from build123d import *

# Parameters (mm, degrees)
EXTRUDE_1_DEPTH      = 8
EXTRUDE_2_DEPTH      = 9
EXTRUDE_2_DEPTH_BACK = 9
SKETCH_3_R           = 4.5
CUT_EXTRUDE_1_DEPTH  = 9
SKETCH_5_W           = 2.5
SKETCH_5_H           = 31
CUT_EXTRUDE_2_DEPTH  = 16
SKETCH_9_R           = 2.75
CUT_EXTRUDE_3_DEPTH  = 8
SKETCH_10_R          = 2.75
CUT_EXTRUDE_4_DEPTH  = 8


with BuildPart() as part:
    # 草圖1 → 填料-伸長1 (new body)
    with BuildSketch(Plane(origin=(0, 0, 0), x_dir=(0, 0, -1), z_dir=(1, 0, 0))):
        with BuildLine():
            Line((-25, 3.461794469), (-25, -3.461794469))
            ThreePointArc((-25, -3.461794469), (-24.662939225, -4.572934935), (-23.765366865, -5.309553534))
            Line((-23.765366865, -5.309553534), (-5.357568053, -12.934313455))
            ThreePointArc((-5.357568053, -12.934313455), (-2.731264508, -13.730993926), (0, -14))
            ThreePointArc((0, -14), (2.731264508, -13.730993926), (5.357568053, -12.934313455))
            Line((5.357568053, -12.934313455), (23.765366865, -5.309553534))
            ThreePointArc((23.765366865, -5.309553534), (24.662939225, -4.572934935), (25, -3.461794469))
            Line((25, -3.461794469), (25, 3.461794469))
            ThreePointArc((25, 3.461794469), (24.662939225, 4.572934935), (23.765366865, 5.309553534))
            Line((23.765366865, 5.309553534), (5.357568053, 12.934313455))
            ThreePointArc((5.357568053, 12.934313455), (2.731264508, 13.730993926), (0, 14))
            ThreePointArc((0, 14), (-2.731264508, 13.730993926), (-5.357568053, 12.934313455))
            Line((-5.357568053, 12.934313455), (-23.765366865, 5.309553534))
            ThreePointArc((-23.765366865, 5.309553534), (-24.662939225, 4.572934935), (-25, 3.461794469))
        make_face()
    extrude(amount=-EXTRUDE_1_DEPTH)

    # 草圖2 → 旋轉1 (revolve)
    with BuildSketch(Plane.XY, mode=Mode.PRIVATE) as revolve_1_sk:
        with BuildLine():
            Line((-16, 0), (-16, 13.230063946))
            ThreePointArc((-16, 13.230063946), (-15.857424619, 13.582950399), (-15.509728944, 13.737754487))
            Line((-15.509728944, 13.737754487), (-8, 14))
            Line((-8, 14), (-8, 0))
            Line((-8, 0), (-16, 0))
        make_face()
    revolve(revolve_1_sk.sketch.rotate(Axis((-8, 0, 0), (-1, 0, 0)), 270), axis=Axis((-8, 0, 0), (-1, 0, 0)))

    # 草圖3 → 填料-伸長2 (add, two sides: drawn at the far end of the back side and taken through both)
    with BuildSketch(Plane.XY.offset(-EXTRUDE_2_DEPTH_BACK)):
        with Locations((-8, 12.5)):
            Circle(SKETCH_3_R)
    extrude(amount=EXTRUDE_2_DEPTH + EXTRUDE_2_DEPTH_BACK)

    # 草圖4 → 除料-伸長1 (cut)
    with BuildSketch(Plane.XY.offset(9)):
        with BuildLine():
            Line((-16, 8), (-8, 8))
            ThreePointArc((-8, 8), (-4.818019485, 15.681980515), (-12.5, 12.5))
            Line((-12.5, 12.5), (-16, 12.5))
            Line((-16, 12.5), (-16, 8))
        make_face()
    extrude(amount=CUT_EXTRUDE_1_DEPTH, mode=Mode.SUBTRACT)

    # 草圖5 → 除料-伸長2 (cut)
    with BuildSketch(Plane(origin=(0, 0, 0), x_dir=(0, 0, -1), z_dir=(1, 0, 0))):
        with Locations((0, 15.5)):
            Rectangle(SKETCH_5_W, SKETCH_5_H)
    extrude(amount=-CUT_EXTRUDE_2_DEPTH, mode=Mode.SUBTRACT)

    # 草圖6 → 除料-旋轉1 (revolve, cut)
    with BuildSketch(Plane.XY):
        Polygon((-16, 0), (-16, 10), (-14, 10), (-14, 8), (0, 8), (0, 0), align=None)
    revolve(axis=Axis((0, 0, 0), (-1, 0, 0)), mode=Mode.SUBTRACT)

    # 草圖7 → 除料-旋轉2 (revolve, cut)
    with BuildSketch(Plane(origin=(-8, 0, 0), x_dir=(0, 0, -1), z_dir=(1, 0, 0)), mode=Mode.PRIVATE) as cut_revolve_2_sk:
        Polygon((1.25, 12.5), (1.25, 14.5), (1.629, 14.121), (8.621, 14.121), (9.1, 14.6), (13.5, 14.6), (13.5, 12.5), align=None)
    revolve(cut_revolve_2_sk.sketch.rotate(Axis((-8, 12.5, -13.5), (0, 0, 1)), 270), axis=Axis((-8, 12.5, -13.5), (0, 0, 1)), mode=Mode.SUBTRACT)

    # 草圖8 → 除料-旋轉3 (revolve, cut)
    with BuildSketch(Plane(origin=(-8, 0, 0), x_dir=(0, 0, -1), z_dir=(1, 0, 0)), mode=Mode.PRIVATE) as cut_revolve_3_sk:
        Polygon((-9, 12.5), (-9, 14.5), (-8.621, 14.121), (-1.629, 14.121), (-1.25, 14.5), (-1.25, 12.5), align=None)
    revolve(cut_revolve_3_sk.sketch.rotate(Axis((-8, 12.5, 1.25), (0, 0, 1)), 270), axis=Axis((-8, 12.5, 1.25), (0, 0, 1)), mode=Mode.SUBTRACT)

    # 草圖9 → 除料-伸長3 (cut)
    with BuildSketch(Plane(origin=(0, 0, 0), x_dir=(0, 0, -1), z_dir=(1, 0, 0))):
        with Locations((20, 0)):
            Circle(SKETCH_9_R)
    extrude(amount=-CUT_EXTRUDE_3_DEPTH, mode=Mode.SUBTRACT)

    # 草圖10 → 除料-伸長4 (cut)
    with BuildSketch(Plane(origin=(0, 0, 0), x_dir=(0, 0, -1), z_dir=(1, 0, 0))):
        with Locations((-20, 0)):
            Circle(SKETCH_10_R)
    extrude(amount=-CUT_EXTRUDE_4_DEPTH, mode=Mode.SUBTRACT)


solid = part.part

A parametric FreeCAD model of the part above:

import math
import FreeCAD as App
import Part
import Sketcher
from FreeCAD import Vector
Q = App.Units.Quantity

doc = App.newDocument("Part")
body = doc.addObject("PartDesign::Body", "Body")

# Sketch on YZ plane
sketch1 = body.newObject("Sketcher::SketchObject", "Sketch")
sketch1.AttachmentSupport = (doc.getObject("YZ_Plane"), [""])
sketch1.MapMode = "FlatFace"
sketch1.addGeometry([
    Part.LineSegment(Vector(3.461794, 25, 0), Vector(-3.461794, 25, 0)),  # 0
    Part.ArcOfCircle(Part.Circle(Vector(-3.461794, 23, 0), Vector(0, 0, 1), 2), math.radians(90), math.radians(157.5)),  # 1
    Part.LineSegment(Vector(-5.309554, 23.765367, 0), Vector(-12.934313, 5.357568, 0)),  # 2
    Part.ArcOfCircle(Part.Circle(Vector(0, 0, 0), Vector(0, 0, 1), 14), math.radians(157.5), math.radians(180)),  # 3
    Part.ArcOfCircle(Part.Circle(Vector(0, 0, 0), Vector(0, 0, 1), 14), math.radians(180), math.radians(202.5)),  # 4
    Part.LineSegment(Vector(-12.934313, -5.357568, 0), Vector(-5.309554, -23.765367, 0)),  # 5
    Part.ArcOfCircle(Part.Circle(Vector(-3.461794, -23, 0), Vector(0, 0, 1), 2), math.radians(-157.5), math.radians(-90)),  # 6
    Part.LineSegment(Vector(-3.461794, -25, 0), Vector(3.461794, -25, 0)),  # 7
    Part.ArcOfCircle(Part.Circle(Vector(3.461794, -23, 0), Vector(0, 0, 1), 2), math.radians(-90), math.radians(-22.5)),  # 8
    Part.LineSegment(Vector(5.309554, -23.765367, 0), Vector(12.934313, -5.357568, 0)),  # 9
    Part.ArcOfCircle(Part.Circle(Vector(0, 0, 0), Vector(0, 0, 1), 14), math.radians(-22.5), math.radians(0)),  # 10
    Part.ArcOfCircle(Part.Circle(Vector(0, 0, 0), Vector(0, 0, 1), 14), math.radians(0), math.radians(22.5)),  # 11
    Part.LineSegment(Vector(12.934313, 5.357568, 0), Vector(5.309554, 23.765367, 0)),  # 12
    Part.ArcOfCircle(Part.Circle(Vector(3.461794, 23, 0), Vector(0, 0, 1), 2), math.radians(22.5), math.radians(90)),  # 13
], False)
sketch1.addConstraint([
    Sketcher.Constraint("Tangent", 0, 2, 1, 1),
    Sketcher.Constraint("Tangent", 1, 2, 2, 1),
    Sketcher.Constraint("Tangent", 2, 2, 3, 1),
    Sketcher.Constraint("Tangent", 3, 2, 4, 1),
    Sketcher.Constraint("Tangent", 4, 2, 5, 1),
    Sketcher.Constraint("Tangent", 5, 2, 6, 1),
    Sketcher.Constraint("Tangent", 6, 2, 7, 1),
    Sketcher.Constraint("Tangent", 7, 2, 8, 1),
    Sketcher.Constraint("Tangent", 8, 2, 9, 1),
    Sketcher.Constraint("Tangent", 9, 2, 10, 1),
    Sketcher.Constraint("Tangent", 10, 2, 11, 1),
    Sketcher.Constraint("Tangent", 11, 2, 12, 1),
    Sketcher.Constraint("Tangent", 12, 2, 13, 1),
    Sketcher.Constraint("Tangent", 13, 2, 0, 1),
    Sketcher.Constraint("Horizontal", 0),
    Sketcher.Constraint("Horizontal", 7),
    Sketcher.Constraint("Coincident", 3, 3, -1, 1),
    Sketcher.Constraint("Coincident", 10, 3, -1, 1),
    Sketcher.Constraint("Equal", 3, 4),
    Sketcher.Constraint("Equal", 1, 6),
    Sketcher.Constraint("Equal", 6, 8),
    Sketcher.Constraint("Equal", 4, 10),
    Sketcher.Constraint("Equal", 10, 11),
    Sketcher.Constraint("Equal", 8, 13),
    Sketcher.Constraint("Symmetric", 1, 3, 8, 3, -1, 1),
    Sketcher.Constraint("PointOnObject", 3, 2, -1),
    Sketcher.Constraint("PointOnObject", 10, 2, -1),
    Sketcher.Constraint("Parallel", 5, 12),
    Sketcher.Constraint("Horizontal", 5, 2, 8, 2),
    Sketcher.Constraint("Radius", 1, Q("2 mm")),
    Sketcher.Constraint("Radius", 3, Q("14 mm")),
    Sketcher.Constraint("DistanceY", -1, 1, 1, 3, Q("23 mm")),
    Sketcher.Constraint("Angle", 2, Q("-112.5 deg")),
])
pad1 = body.newObject("PartDesign::Pad", "Pad")
pad1.Profile = sketch1
pad1.Length = 8
pad1.Reversed = True

# Sketch on XY plane
sketch2 = body.newObject("Sketcher::SketchObject", "Sketch001")
sketch2.AttachmentSupport = (doc.getObject("XY_Plane"), [""])
sketch2.MapMode = "FlatFace"
sketch2.addGeometry([
    Part.LineSegment(Vector(-16, 13.230064, 0), Vector(-16, 0, 0)),  # 0
    Part.LineSegment(Vector(-16, 0, 0), Vector(-8, 0, 0)),  # 1
    Part.LineSegment(Vector(-8, 0, 0), Vector(-8, 14, 0)),  # 2
    Part.LineSegment(Vector(-8, 14, 0), Vector(-15.509729, 13.737754, 0)),  # 3
    Part.ArcOfCircle(Part.Circle(Vector(-15.492, 13.230064, 0), Vector(0, 0, 1), 0.508), math.radians(92), math.radians(180)),  # 4
], False)
sketch2.addConstraint([
    Sketcher.Constraint("Coincident", 0, 2, 1, 1),
    Sketcher.Constraint("Coincident", 1, 2, 2, 1),
    Sketcher.Constraint("Coincident", 2, 2, 3, 1),
    Sketcher.Constraint("Tangent", 3, 2, 4, 1),
    Sketcher.Constraint("Tangent", 4, 2, 0, 1),
    Sketcher.Constraint("Vertical", 0),
    Sketcher.Constraint("Horizontal", 1),
    Sketcher.Constraint("Vertical", 2),
    Sketcher.Constraint("PointOnObject", 0, 2, -1),
    Sketcher.Constraint("DistanceX", 1, 1, 1, 2, Q("8 mm")),
    Sketcher.Constraint("DistanceY", 2, 1, 2, 2, Q("14 mm")),
    Sketcher.Constraint("Angle", 3, Q("-178 deg")),
    Sketcher.Constraint("DistanceX", 0, 2, -1, 1, Q("16 mm")),
    Sketcher.Constraint("Radius", 4, Q("0.508 mm")),
])
revolution = body.newObject("PartDesign::Revolution", "Revolution")
revolution.Profile = sketch2
revolution.ReferenceAxis = (sketch2, ["H_Axis"])
revolution.Angle = 360

# Sketch on XY plane
sketch3 = body.newObject("Sketcher::SketchObject", "Sketch002")
sketch3.AttachmentSupport = (doc.getObject("XY_Plane"), [""])
sketch3.MapMode = "FlatFace"
sketch3.addGeometry(Part.Circle(Vector(-8, 12.5, 0), Vector(0, 0, 1), 4.5), False)
sketch3.addConstraint([
    Sketcher.Constraint("Diameter", 0, Q("9 mm")),
    Sketcher.Constraint("DistanceX", 0, 3, -1, 1, Q("8 mm")),
    Sketcher.Constraint("DistanceY", -1, 1, 0, 3, Q("12.5 mm")),
])
pad2 = body.newObject("PartDesign::Pad", "Pad001")
pad2.Profile = sketch3
pad2.Type = "TwoLengths"
pad2.Length = 9
pad2.Length2 = 9

# Sketch on XY plane
sketch4 = body.newObject("Sketcher::SketchObject", "Sketch003")
sketch4.AttachmentSupport = (doc.getObject("XY_Plane"), [""])
sketch4.MapMode = "FlatFace"
sketch4.AttachmentOffset = App.Placement(Vector(0, 0, 9), App.Rotation())
sketch4.addGeometry([
    Part.LineSegment(Vector(-16, 8, 0), Vector(-8, 8, 0)),
    Part.ArcOfCircle(Part.Circle(Vector(-8, 12.5, 0), Vector(0, 0, 1), 4.5), math.radians(-90), math.radians(180)),
    Part.LineSegment(Vector(-12.5, 12.5, 0), Vector(-16, 12.5, 0)),
    Part.LineSegment(Vector(-16, 12.5, 0), Vector(-16, 8, 0)),
], False)
sketch4.addConstraint([
    Sketcher.Constraint("Tangent", 0, 2, 1, 1),
    Sketcher.Constraint("Coincident", 1, 2, 2, 1),
    Sketcher.Constraint("Coincident", 2, 2, 3, 1),
    Sketcher.Constraint("Coincident", 3, 2, 0, 1),
    Sketcher.Constraint("Horizontal", 0),
    Sketcher.Constraint("Horizontal", 2),
    Sketcher.Constraint("Vertical", 3),
    Sketcher.Constraint("Radius", 1, Q("4.5 mm")),
    Sketcher.Constraint("DistanceX", 0, 1, 0, 2, Q("8 mm")),
    Sketcher.Constraint("DistanceY", 3, 2, 3, 1, Q("4.5 mm")),
    Sketcher.Constraint("DistanceX", 1, 3, -1, 1, Q("8 mm")),
    Sketcher.Constraint("DistanceY", -1, 1, 0, 2, Q("8 mm")),
])
pocket1 = body.newObject("PartDesign::Pocket", "Pocket")
pocket1.Profile = sketch4
pocket1.Length = 9
pocket1.Reversed = True

# Sketch on YZ plane
sketch5 = body.newObject("Sketcher::SketchObject", "Sketch004")
sketch5.AttachmentSupport = (doc.getObject("YZ_Plane"), [""])
sketch5.MapMode = "FlatFace"
sketch5.addGeometry([
    Part.LineSegment(Vector(31, 1.25, 0), Vector(0, 1.25, 0)),
    Part.LineSegment(Vector(0, 1.25, 0), Vector(0, -1.25, 0)),
    Part.LineSegment(Vector(0, -1.25, 0), Vector(31, -1.25, 0)),
    Part.LineSegment(Vector(31, -1.25, 0), Vector(31, 1.25, 0)),
], False)
sketch5.addConstraint([
    Sketcher.Constraint("Coincident", 0, 2, 1, 1),
    Sketcher.Constraint("Coincident", 1, 2, 2, 1),
    Sketcher.Constraint("Coincident", 2, 2, 3, 1),
    Sketcher.Constraint("Coincident", 3, 2, 0, 1),
    Sketcher.Constraint("Horizontal", 0),
    Sketcher.Constraint("Vertical", 1),
    Sketcher.Constraint("Horizontal", 2),
    Sketcher.Constraint("Vertical", 3),
    Sketcher.Constraint("Symmetric", 0, 2, 1, 2, -1, 1),
    Sketcher.Constraint("DistanceX", 0, 2, 0, 1, Q("31 mm")),
    Sketcher.Constraint("DistanceY", 1, 2, 1, 1, Q("2.5 mm")),
])
pocket2 = body.newObject("PartDesign::Pocket", "Pocket001")
pocket2.Profile = sketch5
pocket2.Length = 16

# Sketch on XY plane
sketch6 = body.newObject("Sketcher::SketchObject", "Sketch005")
sketch6.AttachmentSupport = (doc.getObject("XY_Plane"), [""])
sketch6.MapMode = "FlatFace"
sketch6.addGeometry([
    Part.LineSegment(Vector(-16, 10, 0), Vector(-16, 0, 0)),  # 0
    Part.LineSegment(Vector(-16, 0, 0), Vector(0, 0, 0)),  # 1
    Part.LineSegment(Vector(0, 0, 0), Vector(0, 8, 0)),  # 2
    Part.LineSegment(Vector(0, 8, 0), Vector(-14, 8, 0)),  # 3
    Part.LineSegment(Vector(-14, 8, 0), Vector(-14, 10, 0)),  # 4
    Part.LineSegment(Vector(-14, 10, 0), Vector(-16, 10, 0)),  # 5
], False)
sketch6.addConstraint([
    Sketcher.Constraint("Coincident", 0, 2, 1, 1),
    Sketcher.Constraint("Coincident", 1, 2, 2, 1),
    Sketcher.Constraint("Coincident", 2, 2, 3, 1),
    Sketcher.Constraint("Coincident", 3, 2, 4, 1),
    Sketcher.Constraint("Coincident", 4, 2, 5, 1),
    Sketcher.Constraint("Coincident", 5, 2, 0, 1),
    Sketcher.Constraint("Vertical", 0),
    Sketcher.Constraint("Horizontal", 1),
    Sketcher.Constraint("Vertical", 2),
    Sketcher.Constraint("Horizontal", 3),
    Sketcher.Constraint("Vertical", 4),
    Sketcher.Constraint("Horizontal", 5),
    Sketcher.Constraint("Coincident", 1, 2, -1, 1),
    Sketcher.Constraint("Equal", 5, 4),
    Sketcher.Constraint("DistanceX", 1, 1, 1, 2, Q("16 mm")),
    Sketcher.Constraint("DistanceX", 3, 2, 3, 1, Q("14 mm")),
    Sketcher.Constraint("DistanceY", 0, 2, 0, 1, Q("10 mm")),
])
groove = body.newObject("PartDesign::Groove", "Groove")
groove.Profile = sketch6
groove.ReferenceAxis = (sketch6, ["H_Axis"])
groove.Angle = 360

# Sketch on YZ plane
sketch7 = body.newObject("Sketcher::SketchObject", "Sketch006")
sketch7.AttachmentSupport = (doc.getObject("YZ_Plane"), [""])
sketch7.MapMode = "FlatFace"
sketch7.AttachmentOffset = App.Placement(Vector(0, 0, -8), App.Rotation())
sketch7.addGeometry([
    Part.LineSegment(Vector(14.5, -1.25, 0), Vector(12.5, -1.25, 0)),  # 0
    Part.LineSegment(Vector(12.5, -1.25, 0), Vector(12.5, -13.5, 0)),  # 1
    Part.LineSegment(Vector(12.5, -13.5, 0), Vector(14.6, -13.5, 0)),  # 2
    Part.LineSegment(Vector(14.6, -13.5, 0), Vector(14.6, -9.1, 0)),  # 3
    Part.LineSegment(Vector(14.6, -9.1, 0), Vector(14.121, -8.621, 0)),  # 4
    Part.LineSegment(Vector(14.121, -8.621, 0), Vector(14.121, -1.629, 0)),  # 5
    Part.LineSegment(Vector(14.121, -1.629, 0), Vector(14.5, -1.25, 0)),  # 6
], False)
sketch7.addGeometry(Part.LineSegment(Vector(12.5, -13.5, 0), Vector(12.5, -1.25, 0)), True)  # axis
sketch7.addConstraint([
    Sketcher.Constraint("Coincident", 0, 2, 1, 1),
    Sketcher.Constraint("Coincident", 1, 2, 2, 1),
    Sketcher.Constraint("Coincident", 2, 2, 3, 1),
    Sketcher.Constraint("Coincident", 3, 2, 4, 1),
    Sketcher.Constraint("Coincident", 4, 2, 5, 1),
    Sketcher.Constraint("Coincident", 5, 2, 6, 1),
    Sketcher.Constraint("Coincident", 6, 2, 0, 1),
    Sketcher.Constraint("Horizontal", 0),
    Sketcher.Constraint("Vertical", 1),
    Sketcher.Constraint("Horizontal", 2),
    Sketcher.Constraint("Vertical", 3),
    Sketcher.Constraint("Vertical", 5),
    Sketcher.Constraint("Vertical", 7),
    Sketcher.Constraint("Coincident", 7, 1, 1, 2),
    Sketcher.Constraint("Perpendicular", 4, 6),
    Sketcher.Constraint("Horizontal", 6, 2, 7, 2),
    Sketcher.Constraint("DistanceX", 0, 2, 0, 1, Q("2 mm")),
    Sketcher.Constraint("Angle", 4, Q("135 deg")),
    Sketcher.Constraint("DistanceX", 2, 1, 2, 2, Q("2.1 mm")),
    Sketcher.Constraint("DistanceY", 3, 1, 3, 2, Q("4.4 mm")),
    Sketcher.Constraint("DistanceY", 1, 2, 1, 1, Q("12.25 mm")),
    Sketcher.Constraint("DistanceX", -1, 1, 0, 2, Q("12.5 mm")),
    Sketcher.Constraint("DistanceY", 1, 2, -1, 1, Q("13.5 mm")),
    Sketcher.Constraint("DistanceY", 5, 1, 5, 2, Q("6.992 mm")),
])
groove2 = body.newObject("PartDesign::Groove", "Groove001")
groove2.Profile = sketch7
groove2.ReferenceAxis = (sketch7, ["Axis0"])
groove2.Angle = 360

# Sketch on YZ plane
sketch8 = body.newObject("Sketcher::SketchObject", "Sketch007")
sketch8.AttachmentSupport = (doc.getObject("YZ_Plane"), [""])
sketch8.MapMode = "FlatFace"
sketch8.AttachmentOffset = App.Placement(Vector(0, 0, -8), App.Rotation())
sketch8.addGeometry([
    Part.LineSegment(Vector(14.5, 9, 0), Vector(12.5, 9, 0)),  # 0
    Part.LineSegment(Vector(12.5, 9, 0), Vector(12.5, 1.25, 0)),  # 1
    Part.LineSegment(Vector(12.5, 1.25, 0), Vector(14.5, 1.25, 0)),  # 2
    Part.LineSegment(Vector(14.5, 1.25, 0), Vector(14.121, 1.629, 0)),  # 3
    Part.LineSegment(Vector(14.121, 1.629, 0), Vector(14.121, 8.621, 0)),  # 4
    Part.LineSegment(Vector(14.121, 8.621, 0), Vector(14.5, 9, 0)),  # 5
], False)
sketch8.addGeometry(Part.LineSegment(Vector(12.5, 1.25, 0), Vector(12.5, 9, 0)), True)  # axis
sketch8.addConstraint([
    Sketcher.Constraint("Coincident", 0, 2, 1, 1),
    Sketcher.Constraint("Coincident", 1, 2, 2, 1),
    Sketcher.Constraint("Coincident", 2, 2, 3, 1),
    Sketcher.Constraint("Coincident", 3, 2, 4, 1),
    Sketcher.Constraint("Coincident", 4, 2, 5, 1),
    Sketcher.Constraint("Coincident", 5, 2, 0, 1),
    Sketcher.Constraint("Horizontal", 0),
    Sketcher.Constraint("Vertical", 1),
    Sketcher.Constraint("Horizontal", 2),
    Sketcher.Constraint("Vertical", 4),
    Sketcher.Constraint("Vertical", 6),
    Sketcher.Constraint("Coincident", 6, 1, 1, 2),
    Sketcher.Constraint("Perpendicular", 3, 5),
    Sketcher.Constraint("Horizontal", 5, 2, 6, 2),
    Sketcher.Constraint("Vertical", 2, 2, 5, 2),
    Sketcher.Constraint("Equal", 3, 5),
    Sketcher.Constraint("DistanceX", 0, 2, 0, 1, Q("2 mm")),
    Sketcher.Constraint("DistanceY", -1, 1, 0, 2, Q("9 mm")),
    Sketcher.Constraint("DistanceY", 1, 2, 1, 1, Q("7.75 mm")),
    Sketcher.Constraint("DistanceX", -1, 1, 0, 2, Q("12.5 mm")),
    Sketcher.Constraint("DistanceY", 4, 1, 4, 2, Q("6.992 mm")),
])
groove3 = body.newObject("PartDesign::Groove", "Groove002")
groove3.Profile = sketch8
groove3.ReferenceAxis = (sketch8, ["Axis0"])
groove3.Angle = 360

# Sketch on YZ plane
sketch9 = body.newObject("Sketcher::SketchObject", "Sketch008")
sketch9.AttachmentSupport = (doc.getObject("YZ_Plane"), [""])
sketch9.MapMode = "FlatFace"
sketch9.addGeometry(Part.Circle(Vector(0, -20, 0), Vector(0, 0, 1), 2.75), False)
sketch9.addConstraint([
    Sketcher.Constraint("PointOnObject", 0, 3, -2),
    Sketcher.Constraint("Diameter", 0, Q("5.5 mm")),
    Sketcher.Constraint("DistanceY", 0, 3, -1, 1, Q("20 mm")),
])
pocket3 = body.newObject("PartDesign::Pocket", "Pocket002")
pocket3.Profile = sketch9
pocket3.Length = 8

# Sketch on YZ plane
sketch10 = body.newObject("Sketcher::SketchObject", "Sketch009")
sketch10.AttachmentSupport = (doc.getObject("YZ_Plane"), [""])
sketch10.MapMode = "FlatFace"
sketch10.addGeometry(Part.Circle(Vector(0, 20, 0), Vector(0, 0, 1), 2.75), False)
sketch10.addConstraint([
    Sketcher.Constraint("PointOnObject", 0, 3, -2),
    Sketcher.Constraint("Diameter", 0, Q("5.5 mm")),
    Sketcher.Constraint("DistanceY", -1, 1, 0, 3, Q("20 mm")),
])
pocket4 = body.newObject("PartDesign::Pocket", "Pocket003")
pocket4.Profile = sketch10
pocket4.Length = 8

doc.recompute()
